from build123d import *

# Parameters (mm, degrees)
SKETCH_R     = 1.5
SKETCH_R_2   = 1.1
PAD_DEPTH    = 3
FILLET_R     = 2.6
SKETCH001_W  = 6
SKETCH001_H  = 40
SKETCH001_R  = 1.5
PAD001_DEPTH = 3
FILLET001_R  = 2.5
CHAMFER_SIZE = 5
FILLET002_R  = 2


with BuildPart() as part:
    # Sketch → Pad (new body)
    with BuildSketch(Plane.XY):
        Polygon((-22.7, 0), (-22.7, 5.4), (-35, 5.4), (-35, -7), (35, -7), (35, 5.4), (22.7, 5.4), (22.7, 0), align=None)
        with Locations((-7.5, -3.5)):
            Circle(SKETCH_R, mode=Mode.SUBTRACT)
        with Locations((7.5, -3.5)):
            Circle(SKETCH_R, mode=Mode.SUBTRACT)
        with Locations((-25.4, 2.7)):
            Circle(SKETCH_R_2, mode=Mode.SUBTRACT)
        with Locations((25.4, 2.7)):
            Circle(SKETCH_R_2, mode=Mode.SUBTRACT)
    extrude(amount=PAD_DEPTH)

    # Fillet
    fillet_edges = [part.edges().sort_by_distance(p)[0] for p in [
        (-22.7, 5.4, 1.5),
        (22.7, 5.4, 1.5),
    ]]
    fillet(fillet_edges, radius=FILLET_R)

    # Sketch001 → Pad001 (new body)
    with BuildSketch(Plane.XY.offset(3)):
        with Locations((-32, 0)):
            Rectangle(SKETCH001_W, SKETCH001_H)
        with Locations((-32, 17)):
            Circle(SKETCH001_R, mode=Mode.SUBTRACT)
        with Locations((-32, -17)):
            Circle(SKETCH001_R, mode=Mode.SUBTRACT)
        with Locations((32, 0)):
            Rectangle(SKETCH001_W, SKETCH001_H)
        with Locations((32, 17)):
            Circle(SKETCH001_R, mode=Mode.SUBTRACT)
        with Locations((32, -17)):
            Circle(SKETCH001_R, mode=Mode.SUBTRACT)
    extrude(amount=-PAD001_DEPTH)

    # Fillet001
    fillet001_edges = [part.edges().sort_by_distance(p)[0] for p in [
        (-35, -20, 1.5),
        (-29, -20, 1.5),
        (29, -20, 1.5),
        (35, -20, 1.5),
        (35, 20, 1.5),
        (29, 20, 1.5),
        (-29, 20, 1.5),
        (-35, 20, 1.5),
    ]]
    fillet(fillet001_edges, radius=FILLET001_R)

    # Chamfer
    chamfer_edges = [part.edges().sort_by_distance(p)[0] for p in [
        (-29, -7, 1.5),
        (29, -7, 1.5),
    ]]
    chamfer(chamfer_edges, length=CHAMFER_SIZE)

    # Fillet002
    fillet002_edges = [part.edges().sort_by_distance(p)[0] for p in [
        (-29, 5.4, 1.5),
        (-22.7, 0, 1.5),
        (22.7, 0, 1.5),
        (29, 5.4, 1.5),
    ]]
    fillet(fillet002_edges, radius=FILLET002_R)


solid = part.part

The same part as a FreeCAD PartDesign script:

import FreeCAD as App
import Part
import Sketcher

V = App.Vector
Q = App.Units.Quantity


def edges_at(feature, points):
    """Names of the edges that pass closest to the given points."""
    edges = feature.Shape.Edges
    near = lambda p: min(range(len(edges)), key=lambda i: edges[i].distToShape(Part.Vertex(*p))[0])
    return sorted({f"Edge{near(p) + 1}" for p in points})

doc = App.newDocument("Part")
body = doc.addObject("PartDesign::Body", "Body")

# Sketch on XY plane
sketch1 = doc.addObject("Sketcher::SketchObject", "Sketch")
body.addObject(sketch1)
sketch1.AttachmentSupport = (doc.XY_Plane, [""])
sketch1.MapMode = "FlatFace"
sketch1.addGeometry(Part.LineSegment(V(-22.7, 0, 0), V(-22.7, 5.4, 0)), False)
sketch1.addGeometry(Part.LineSegment(V(-22.7, 5.4, 0), V(-35, 5.4, 0)), False)
sketch1.addGeometry(Part.LineSegment(V(-35, 5.4, 0), V(-35, -7, 0)), False)
sketch1.addGeometry(Part.LineSegment(V(-35, -7, 0), V(35, -7, 0)), False)
sketch1.addGeometry(Part.LineSegment(V(35, -7, 0), V(35, 5.4, 0)), False)
sketch1.addGeometry(Part.LineSegment(V(35, 5.4, 0), V(22.7, 5.4, 0)), False)
sketch1.addGeometry(Part.LineSegment(V(22.7, 5.4, 0), V(22.7, 0, 0)), False)
sketch1.addGeometry(Part.LineSegment(V(22.7, 0, 0), V(-22.7, 0, 0)), False)
sketch1.addGeometry(Part.Circle(V(-7.5, -3.5, 0), V(0, 0, 1), 1.5), False)
sketch1.addGeometry(Part.Circle(V(7.5, -3.5, 0), V(0, 0, 1), 1.5), False)
sketch1.addGeometry(Part.Circle(V(-25.4, 2.7, 0), V(0, 0, 1), 1.1), False)
sketch1.addGeometry(Part.Circle(V(25.4, 2.7, 0), V(0, 0, 1), 1.1), False)
sketch1.addConstraint(Sketcher.Constraint("Coincident", 0, 2, 1, 1))
sketch1.addConstraint(Sketcher.Constraint("Coincident", 1, 2, 2, 1))
sketch1.addConstraint(Sketcher.Constraint("Coincident", 2, 2, 3, 1))
sketch1.addConstraint(Sketcher.Constraint("Coincident", 3, 2, 4, 1))
sketch1.addConstraint(Sketcher.Constraint("Coincident", 4, 2, 5, 1))
sketch1.addConstraint(Sketcher.Constraint("Coincident", 5, 2, 6, 1))
sketch1.addConstraint(Sketcher.Constraint("Coincident", 6, 2, 7, 1))
sketch1.addConstraint(Sketcher.Constraint("Coincident", 7, 2, 0, 1))
sketch1.addConstraint(Sketcher.Constraint("Vertical", 0))
sketch1.addConstraint(Sketcher.Constraint("Horizontal", 1))
sketch1.addConstraint(Sketcher.Constraint("Vertical", 2))
sketch1.addConstraint(Sketcher.Constraint("Horizontal", 3))
sketch1.addConstraint(Sketcher.Constraint("Vertical", 4))
sketch1.addConstraint(Sketcher.Constraint("Horizontal", 5))
sketch1.addConstraint(Sketcher.Constraint("Vertical", 6))
sketch1.addConstraint(Sketcher.Constraint("Horizontal", 7))
sketch1.addConstraint(Sketcher.Constraint("Equal", 8, 9))
sketch1.addConstraint(Sketcher.Constraint("Equal", 10, 11))
sketch1.addConstraint(Sketcher.Constraint("Symmetric", 6, 2, 7, 2, -1, 1))
sketch1.addConstraint(Sketcher.Constraint("Symmetric", 8, 3, 9, 3, -2))
sketch1.addConstraint(Sketcher.Constraint("Symmetric", 10, 3, 11, 3, -2))
sketch1.addConstraint(Sketcher.Constraint("Symmetric", 1, 2, 4, 2, -2))
sketch1.addConstraint(Sketcher.Constraint("Diameter", 8, Q("3 mm")))
sketch1.addConstraint(Sketcher.Constraint("Diameter", 10, Q("2.2 mm")))
sketch1.addConstraint(Sketcher.Constraint("DistanceX", 3, 1, 3, 2, Q("70 mm")))
sketch1.addConstraint(Sketcher.Constraint("DistanceX", 1, 2, 1, 1, Q("12.3 mm")))
sketch1.addConstraint(Sketcher.Constraint("DistanceY", 0, 1, 0, 2, Q("5.4 mm")))
sketch1.addConstraint(Sketcher.Constraint("DistanceY", 2, 2, 2, 1, Q("12.4 mm")))
sketch1.addConstraint(Sketcher.Constraint("DistanceX", 8, 3, 9, 3, Q("15 mm")))
sketch1.addConstraint(Sketcher.Constraint("DistanceY", 8, 3, -1, 1, Q("3.5 mm")))
sketch1.addConstraint(Sketcher.Constraint("DistanceX", 10, 3, -1, 1, Q("25.4 mm")))
sketch1.addConstraint(Sketcher.Constraint("DistanceY", -1, 1, 10, 3, Q("2.7 mm")))
pad1 = doc.addObject("PartDesign::Pad", "Pad")
body.addObject(pad1)
pad1.Profile = sketch1
pad1.Length = 3
doc.recompute()

fillet = doc.addObject("PartDesign::Fillet", "Fillet")
body.addObject(fillet)
fillet.Base = (pad1, edges_at(pad1, [(-22.7, 5.4, 1.5), (22.7, 5.4, 1.5)]))
fillet.Radius = 2.6

# Sketch on XY plane
sketch2 = doc.addObject("Sketcher::SketchObject", "Sketch001")
body.addObject(sketch2)
sketch2.AttachmentSupport = (doc.XY_Plane, [""])
sketch2.MapMode = "FlatFace"
sketch2.AttachmentOffset = App.Placement(V(0, 0, 3), App.Rotation())
sketch2.addGeometry(Part.LineSegment(V(-35, 20, 0), V(-35, -20, 0)), False)
sketch2.addGeometry(Part.LineSegment(V(-35, -20, 0), V(-29, -20, 0)), False)
sketch2.addGeometry(Part.LineSegment(V(-29, -20, 0), V(-29, 20, 0)), False)
sketch2.addGeometry(Part.LineSegment(V(-29, 20, 0), V(-35, 20, 0)), False)
sketch2.addGeometry(Part.Circle(V(-32, -17, 0), V(0, 0, 1), 1.5), False)
sketch2.addGeometry(Part.Circle(V(-32, 17, 0), V(0, 0, 1), 1.5), False)
sketch2.addGeometry(Part.LineSegment(V(29, 20, 0), V(29, -20, 0)), False)
sketch2.addGeometry(Part.LineSegment(V(29, -20, 0), V(35, -20, 0)), False)
sketch2.addGeometry(Part.LineSegment(V(35, -20, 0), V(35, 20, 0)), False)
sketch2.addGeometry(Part.LineSegment(V(35, 20, 0), V(29, 20, 0)), False)
sketch2.addGeometry(Part.Circle(V(32, -17, 0), V(0, 0, 1), 1.5), False)
sketch2.addGeometry(Part.Circle(V(32, 17, 0), V(0, 0, 1), 1.5), False)
sketch2.addConstraint(Sketcher.Constraint("Coincident", 0, 2, 1, 1))
sketch2.addConstraint(Sketcher.Constraint("Coincident", 1, 2, 2, 1))
sketch2.addConstraint(Sketcher.Constraint("Coincident", 2, 2, 3, 1))
sketch2.addConstraint(Sketcher.Constraint("Coincident", 3, 2, 0, 1))
sketch2.addConstraint(Sketcher.Constraint("Coincident", 6, 2, 7, 1))
sketch2.addConstraint(Sketcher.Constraint("Coincident", 7, 2, 8, 1))
sketch2.addConstraint(Sketcher.Constraint("Coincident", 8, 2, 9, 1))
sketch2.addConstraint(Sketcher.Constraint("Coincident", 9, 2, 6, 1))
sketch2.addConstraint(Sketcher.Constraint("Vertical", 0))
sketch2.addConstraint(Sketcher.Constraint("Horizontal", 1))
sketch2.addConstraint(Sketcher.Constraint("Vertical", 2))
sketch2.addConstraint(Sketcher.Constraint("Horizontal", 3))
sketch2.addConstraint(Sketcher.Constraint("Vertical", 6))
sketch2.addConstraint(Sketcher.Constraint("Horizontal", 7))
sketch2.addConstraint(Sketcher.Constraint("Vertical", 8))
sketch2.addConstraint(Sketcher.Constraint("Horizontal", 9))
sketch2.addConstraint(Sketcher.Constraint("Equal", 4, 5))
sketch2.addConstraint(Sketcher.Constraint("Equal", 5, 10))
sketch2.addConstraint(Sketcher.Constraint("Equal", 10, 11))
sketch2.addConstraint(Sketcher.Constraint("Symmetric", 5, 3, 10, 3, -1, 1))
sketch2.addConstraint(Sketcher.Constraint("Symmetric", 4, 3, 11, 3, -1, 1))
sketch2.addConstraint(Sketcher.Constraint("Symmetric", 2, 2, 6, 2, -1, 1))
sketch2.addConstraint(Sketcher.Constraint("Symmetric", 0, 2, 8, 2, -1, 1))
sketch2.addConstraint(Sketcher.Constraint("Symmetric", 4, 3, 10, 3, -2))
sketch2.addConstraint(Sketcher.Constraint("Horizontal", 1, 2, 6, 2))
sketch2.addConstraint(Sketcher.Constraint("Diameter", 4, Q("3 mm")))
sketch2.addConstraint(Sketcher.Constraint("DistanceX", 1, 1, 1, 2, Q("6 mm")))
sketch2.addConstraint(Sketcher.Constraint("DistanceY", 0, 2, 0, 1, Q("40 mm")))
sketch2.addConstraint(Sketcher.Constraint("DistanceX", 4, 3, -1, 1, Q("32 mm")))
sketch2.addConstraint(Sketcher.Constraint("DistanceY", 4, 3, -1, 1, Q("17 mm")))
sketch2.addConstraint(Sketcher.Constraint("DistanceX", 0, 2, -1, 1, Q("35 mm")))
pad2 = doc.addObject("PartDesign::Pad", "Pad001")
body.addObject(pad2)
pad2.Profile = sketch2
pad2.Length = 3
pad2.Reversed = True
doc.recompute()

fillet2 = doc.addObject("PartDesign::Fillet", "Fillet001")
body.addObject(fillet2)
fillet2.Base = (pad2, edges_at(pad2, [
    (-35, -20, 1.5),
    (-29, -20, 1.5),
    (29, -20, 1.5),
    (35, -20, 1.5),
    (35, 20, 1.5),
    (29, 20, 1.5),
    (-29, 20, 1.5),
    (-35, 20, 1.5),
]))
fillet2.Radius = 2.5
doc.recompute()

chamfer = doc.addObject("PartDesign::Chamfer", "Chamfer")
body.addObject(chamfer)
chamfer.Base = (fillet2, edges_at(fillet2, [(-29, -7, 1.5), (29, -7, 1.5)]))
chamfer.Size = 5
doc.recompute()

fillet3 = doc.addObject("PartDesign::Fillet", "Fillet002")
body.addObject(fillet3)
fillet3.Base = (chamfer, edges_at(chamfer, [
    (-29, 5.4, 1.5),
    (-22.7, 0, 1.5),
    (22.7, 0, 1.5),
    (29, 5.4, 1.5),
]))
fillet3.Radius = 2

doc.recompute()
